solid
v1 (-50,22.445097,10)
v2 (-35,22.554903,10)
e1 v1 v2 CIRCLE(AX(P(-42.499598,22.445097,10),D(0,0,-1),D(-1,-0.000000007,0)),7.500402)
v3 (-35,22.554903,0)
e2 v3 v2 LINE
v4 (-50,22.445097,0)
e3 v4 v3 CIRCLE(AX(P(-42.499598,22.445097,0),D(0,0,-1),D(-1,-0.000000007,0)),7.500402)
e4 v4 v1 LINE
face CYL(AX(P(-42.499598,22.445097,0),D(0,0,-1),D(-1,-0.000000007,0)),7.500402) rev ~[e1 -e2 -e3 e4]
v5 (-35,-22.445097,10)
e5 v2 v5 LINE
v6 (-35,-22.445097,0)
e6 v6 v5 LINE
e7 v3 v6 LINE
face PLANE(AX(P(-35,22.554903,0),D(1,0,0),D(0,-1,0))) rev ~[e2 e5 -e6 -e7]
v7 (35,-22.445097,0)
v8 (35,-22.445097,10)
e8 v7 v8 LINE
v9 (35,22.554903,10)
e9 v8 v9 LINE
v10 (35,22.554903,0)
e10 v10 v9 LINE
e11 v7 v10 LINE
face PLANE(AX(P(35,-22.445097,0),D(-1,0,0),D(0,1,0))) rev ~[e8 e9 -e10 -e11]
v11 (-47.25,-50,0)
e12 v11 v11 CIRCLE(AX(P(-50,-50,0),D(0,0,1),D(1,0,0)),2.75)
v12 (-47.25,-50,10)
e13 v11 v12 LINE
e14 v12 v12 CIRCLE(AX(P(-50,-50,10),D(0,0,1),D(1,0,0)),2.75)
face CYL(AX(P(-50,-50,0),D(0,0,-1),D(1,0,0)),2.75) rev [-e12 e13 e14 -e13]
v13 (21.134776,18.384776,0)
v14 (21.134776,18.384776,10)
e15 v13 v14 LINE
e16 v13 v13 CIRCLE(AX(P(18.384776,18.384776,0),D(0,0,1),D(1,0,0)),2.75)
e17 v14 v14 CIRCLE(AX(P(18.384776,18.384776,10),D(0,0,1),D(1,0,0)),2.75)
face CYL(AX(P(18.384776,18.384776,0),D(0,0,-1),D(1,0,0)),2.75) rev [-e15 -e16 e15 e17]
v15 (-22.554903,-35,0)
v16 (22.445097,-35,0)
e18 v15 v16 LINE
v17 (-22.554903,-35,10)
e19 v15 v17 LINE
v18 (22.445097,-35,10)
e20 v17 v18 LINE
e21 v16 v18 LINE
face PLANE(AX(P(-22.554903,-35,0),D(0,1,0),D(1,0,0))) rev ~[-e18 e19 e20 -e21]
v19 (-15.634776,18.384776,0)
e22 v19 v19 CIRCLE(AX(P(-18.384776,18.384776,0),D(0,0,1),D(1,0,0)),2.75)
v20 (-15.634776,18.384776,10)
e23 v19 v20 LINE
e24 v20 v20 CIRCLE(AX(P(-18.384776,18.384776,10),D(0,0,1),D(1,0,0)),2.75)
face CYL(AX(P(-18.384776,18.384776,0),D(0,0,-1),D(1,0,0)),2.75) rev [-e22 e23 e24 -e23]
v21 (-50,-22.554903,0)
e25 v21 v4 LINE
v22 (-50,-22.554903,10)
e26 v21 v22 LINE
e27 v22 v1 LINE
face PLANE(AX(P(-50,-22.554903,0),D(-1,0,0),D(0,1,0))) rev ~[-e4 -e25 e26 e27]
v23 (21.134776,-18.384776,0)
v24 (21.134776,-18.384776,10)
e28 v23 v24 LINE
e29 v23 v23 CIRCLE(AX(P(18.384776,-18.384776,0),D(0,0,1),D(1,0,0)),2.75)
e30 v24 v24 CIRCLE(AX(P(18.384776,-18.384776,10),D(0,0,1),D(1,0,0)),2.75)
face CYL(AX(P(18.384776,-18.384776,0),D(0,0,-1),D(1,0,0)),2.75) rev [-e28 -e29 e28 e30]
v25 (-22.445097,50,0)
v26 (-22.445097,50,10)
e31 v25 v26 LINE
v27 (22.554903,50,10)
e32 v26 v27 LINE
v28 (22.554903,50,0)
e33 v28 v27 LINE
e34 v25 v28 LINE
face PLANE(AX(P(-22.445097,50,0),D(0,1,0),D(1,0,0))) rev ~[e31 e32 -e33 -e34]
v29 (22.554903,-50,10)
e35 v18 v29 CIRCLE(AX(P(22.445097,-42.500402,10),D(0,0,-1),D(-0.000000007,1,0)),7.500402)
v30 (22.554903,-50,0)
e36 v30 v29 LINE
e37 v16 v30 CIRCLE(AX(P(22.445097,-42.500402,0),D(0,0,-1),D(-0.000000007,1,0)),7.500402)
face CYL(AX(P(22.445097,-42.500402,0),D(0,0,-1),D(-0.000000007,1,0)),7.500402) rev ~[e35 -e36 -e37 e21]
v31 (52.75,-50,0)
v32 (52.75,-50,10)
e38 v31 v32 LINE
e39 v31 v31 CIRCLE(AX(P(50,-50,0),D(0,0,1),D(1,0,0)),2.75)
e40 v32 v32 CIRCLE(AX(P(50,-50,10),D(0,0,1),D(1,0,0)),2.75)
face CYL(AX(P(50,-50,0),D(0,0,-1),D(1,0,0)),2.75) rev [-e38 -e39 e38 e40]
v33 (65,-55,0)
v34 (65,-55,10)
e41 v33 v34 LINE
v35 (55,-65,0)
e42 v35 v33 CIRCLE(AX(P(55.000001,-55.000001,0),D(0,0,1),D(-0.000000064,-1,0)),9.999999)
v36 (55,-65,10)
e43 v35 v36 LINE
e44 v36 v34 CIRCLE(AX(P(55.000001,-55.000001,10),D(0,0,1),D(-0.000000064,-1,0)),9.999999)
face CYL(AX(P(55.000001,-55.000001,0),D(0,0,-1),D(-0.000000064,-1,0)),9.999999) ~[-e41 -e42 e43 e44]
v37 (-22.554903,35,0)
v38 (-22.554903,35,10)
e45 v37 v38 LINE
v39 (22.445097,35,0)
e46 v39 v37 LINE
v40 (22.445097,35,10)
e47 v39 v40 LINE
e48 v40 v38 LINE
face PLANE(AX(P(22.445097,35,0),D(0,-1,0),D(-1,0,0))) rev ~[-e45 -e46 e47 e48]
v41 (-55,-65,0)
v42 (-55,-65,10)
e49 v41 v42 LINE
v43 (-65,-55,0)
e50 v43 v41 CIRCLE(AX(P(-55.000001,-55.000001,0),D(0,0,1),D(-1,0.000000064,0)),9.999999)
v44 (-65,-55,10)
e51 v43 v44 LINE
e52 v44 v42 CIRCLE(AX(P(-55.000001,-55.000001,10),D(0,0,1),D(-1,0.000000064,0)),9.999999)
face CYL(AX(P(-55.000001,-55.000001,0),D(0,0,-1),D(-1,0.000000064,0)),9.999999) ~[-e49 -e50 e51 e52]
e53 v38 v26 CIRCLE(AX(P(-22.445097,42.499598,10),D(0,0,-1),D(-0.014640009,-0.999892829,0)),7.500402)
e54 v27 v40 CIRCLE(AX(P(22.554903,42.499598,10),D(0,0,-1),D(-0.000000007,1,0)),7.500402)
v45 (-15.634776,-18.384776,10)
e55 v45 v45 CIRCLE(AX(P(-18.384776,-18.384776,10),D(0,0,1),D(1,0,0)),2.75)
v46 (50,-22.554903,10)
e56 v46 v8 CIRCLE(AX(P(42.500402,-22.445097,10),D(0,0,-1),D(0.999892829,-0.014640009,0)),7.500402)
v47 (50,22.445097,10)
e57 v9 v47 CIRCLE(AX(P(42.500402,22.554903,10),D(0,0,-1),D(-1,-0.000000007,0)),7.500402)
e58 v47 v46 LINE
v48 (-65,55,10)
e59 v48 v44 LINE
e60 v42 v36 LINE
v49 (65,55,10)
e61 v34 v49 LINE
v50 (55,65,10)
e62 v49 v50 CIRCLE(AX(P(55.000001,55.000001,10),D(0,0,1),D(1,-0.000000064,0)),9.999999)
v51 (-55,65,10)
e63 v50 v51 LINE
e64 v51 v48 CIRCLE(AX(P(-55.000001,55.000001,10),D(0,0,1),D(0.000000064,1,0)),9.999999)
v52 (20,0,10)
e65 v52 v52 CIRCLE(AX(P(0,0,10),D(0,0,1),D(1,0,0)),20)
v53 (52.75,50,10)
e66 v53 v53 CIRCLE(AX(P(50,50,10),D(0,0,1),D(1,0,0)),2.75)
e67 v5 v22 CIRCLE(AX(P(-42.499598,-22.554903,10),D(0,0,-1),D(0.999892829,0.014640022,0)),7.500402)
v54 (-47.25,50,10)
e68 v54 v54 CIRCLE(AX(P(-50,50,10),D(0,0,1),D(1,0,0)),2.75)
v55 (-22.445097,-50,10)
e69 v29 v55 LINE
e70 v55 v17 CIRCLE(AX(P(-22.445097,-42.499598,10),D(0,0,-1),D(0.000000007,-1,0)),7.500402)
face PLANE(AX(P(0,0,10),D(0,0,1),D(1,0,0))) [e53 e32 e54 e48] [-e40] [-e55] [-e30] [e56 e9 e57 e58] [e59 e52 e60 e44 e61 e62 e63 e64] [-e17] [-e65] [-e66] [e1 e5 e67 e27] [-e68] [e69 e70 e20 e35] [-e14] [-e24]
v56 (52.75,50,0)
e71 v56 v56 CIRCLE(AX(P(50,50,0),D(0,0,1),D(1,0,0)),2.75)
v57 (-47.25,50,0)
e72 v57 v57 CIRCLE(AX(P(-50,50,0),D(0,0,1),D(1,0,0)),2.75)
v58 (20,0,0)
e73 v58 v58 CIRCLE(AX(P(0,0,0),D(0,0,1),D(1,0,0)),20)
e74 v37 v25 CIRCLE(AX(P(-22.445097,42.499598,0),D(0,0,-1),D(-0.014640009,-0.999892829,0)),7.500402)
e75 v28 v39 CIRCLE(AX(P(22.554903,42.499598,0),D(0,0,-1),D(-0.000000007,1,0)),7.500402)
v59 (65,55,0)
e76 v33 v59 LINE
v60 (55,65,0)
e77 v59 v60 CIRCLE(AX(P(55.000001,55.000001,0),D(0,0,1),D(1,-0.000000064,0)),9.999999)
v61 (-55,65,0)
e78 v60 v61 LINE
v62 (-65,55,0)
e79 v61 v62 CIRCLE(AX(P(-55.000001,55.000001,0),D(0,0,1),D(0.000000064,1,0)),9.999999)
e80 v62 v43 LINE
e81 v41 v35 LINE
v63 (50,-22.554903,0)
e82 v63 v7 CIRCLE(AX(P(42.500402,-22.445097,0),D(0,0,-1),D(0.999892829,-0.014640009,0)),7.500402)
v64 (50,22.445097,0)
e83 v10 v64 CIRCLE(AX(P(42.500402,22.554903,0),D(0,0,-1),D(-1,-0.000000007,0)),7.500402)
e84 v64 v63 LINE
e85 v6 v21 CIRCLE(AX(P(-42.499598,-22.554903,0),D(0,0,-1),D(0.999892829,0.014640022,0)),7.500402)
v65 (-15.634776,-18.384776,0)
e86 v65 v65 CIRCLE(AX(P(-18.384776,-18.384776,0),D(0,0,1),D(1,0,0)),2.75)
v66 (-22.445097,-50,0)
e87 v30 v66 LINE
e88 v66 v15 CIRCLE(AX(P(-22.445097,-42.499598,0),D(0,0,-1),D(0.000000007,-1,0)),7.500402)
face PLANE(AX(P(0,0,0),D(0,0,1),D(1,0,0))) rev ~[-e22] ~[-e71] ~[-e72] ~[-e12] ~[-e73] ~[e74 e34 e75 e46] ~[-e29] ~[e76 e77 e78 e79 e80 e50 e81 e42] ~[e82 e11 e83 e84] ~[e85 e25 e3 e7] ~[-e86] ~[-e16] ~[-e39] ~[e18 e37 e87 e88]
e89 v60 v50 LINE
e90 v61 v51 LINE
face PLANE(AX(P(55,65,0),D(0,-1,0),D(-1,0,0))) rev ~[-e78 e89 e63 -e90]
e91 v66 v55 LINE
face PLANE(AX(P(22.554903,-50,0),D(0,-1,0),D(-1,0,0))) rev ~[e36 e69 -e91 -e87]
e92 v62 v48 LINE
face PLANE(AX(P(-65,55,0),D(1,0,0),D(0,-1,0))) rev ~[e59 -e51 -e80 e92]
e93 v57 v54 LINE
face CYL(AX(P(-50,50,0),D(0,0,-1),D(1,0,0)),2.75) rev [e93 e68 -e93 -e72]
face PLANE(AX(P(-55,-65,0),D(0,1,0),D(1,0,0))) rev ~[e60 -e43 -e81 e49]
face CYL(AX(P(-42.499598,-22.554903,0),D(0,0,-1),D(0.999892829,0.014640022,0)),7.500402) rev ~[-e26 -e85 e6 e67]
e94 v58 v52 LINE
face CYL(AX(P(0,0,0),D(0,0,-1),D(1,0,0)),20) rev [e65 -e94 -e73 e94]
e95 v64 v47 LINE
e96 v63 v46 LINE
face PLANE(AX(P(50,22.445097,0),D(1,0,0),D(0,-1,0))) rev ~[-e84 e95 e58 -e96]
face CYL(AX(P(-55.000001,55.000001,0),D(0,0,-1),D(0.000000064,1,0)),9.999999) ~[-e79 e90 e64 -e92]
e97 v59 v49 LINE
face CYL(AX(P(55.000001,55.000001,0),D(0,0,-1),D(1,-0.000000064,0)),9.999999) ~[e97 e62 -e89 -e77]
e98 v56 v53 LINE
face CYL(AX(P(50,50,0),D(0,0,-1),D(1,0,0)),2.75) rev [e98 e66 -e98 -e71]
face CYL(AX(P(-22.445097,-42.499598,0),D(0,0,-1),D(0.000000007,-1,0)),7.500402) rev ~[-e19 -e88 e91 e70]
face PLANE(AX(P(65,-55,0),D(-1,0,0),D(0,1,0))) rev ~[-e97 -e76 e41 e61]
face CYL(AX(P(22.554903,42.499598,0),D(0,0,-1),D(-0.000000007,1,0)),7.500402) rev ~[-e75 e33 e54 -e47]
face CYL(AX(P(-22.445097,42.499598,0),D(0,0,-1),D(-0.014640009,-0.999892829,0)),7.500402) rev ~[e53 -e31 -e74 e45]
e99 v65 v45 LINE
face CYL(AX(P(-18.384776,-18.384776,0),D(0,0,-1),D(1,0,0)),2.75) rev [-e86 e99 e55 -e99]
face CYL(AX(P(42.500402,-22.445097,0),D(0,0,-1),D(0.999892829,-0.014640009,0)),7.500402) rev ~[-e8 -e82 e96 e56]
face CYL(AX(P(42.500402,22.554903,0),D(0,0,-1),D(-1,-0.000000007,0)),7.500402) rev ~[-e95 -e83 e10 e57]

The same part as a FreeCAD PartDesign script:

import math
import FreeCAD as App
import Part
import Sketcher

V = App.Vector
Q = App.Units.Quantity

doc = App.newDocument("Part")
body = doc.addObject("PartDesign::Body", "Body")

sketch1 = doc.addObject("Sketcher::SketchObject", "Sketch")
body.addObject(sketch1)
sketch1.AttachmentSupport = (doc.XY_Plane, [""])
sketch1.MapMode = "FlatFace"
sketch1.addGeometry([
    Part.LineSegment(V(-55, -65, 0), V(55, -65, 0)),
    Part.ArcOfCircle(Part.Circle(V(55.000001, -55.000001, 0), V(0, 0, 1), 9.999999), math.radians(-90.000004), math.radians(0.000004)),
    Part.LineSegment(V(65, -55, 0), V(65, 55, 0)),
    Part.ArcOfCircle(Part.Circle(V(55.000001, 55.000001, 0), V(0, 0, 1), 9.999999), math.radians(-0.000004), math.radians(90.000004)),
    Part.LineSegment(V(55, 65, 0), V(-55, 65, 0)),
    Part.ArcOfCircle(Part.Circle(V(-55.000001, 55.000001, 0), V(0, 0, 1), 9.999999), math.radians(89.999996), math.radians(180.000004)),
    Part.LineSegment(V(-65, 55, 0), V(-65, -55, 0)),
    Part.ArcOfCircle(Part.Circle(V(-55.000001, -55.000001, 0), V(0, 0, 1), 9.999999), math.radians(179.999996), math.radians(270.000004)),
    Part.Circle(V(-50, -50, 0), V(0, 0, 1), 2.75),
    Part.ArcOfCircle(Part.Circle(V(-42.499598, 22.445097, 0), V(0, 0, 1), 7.500402), math.radians(0.838841), math.radians(180)),
    Part.LineSegment(V(-35, 22.554903, 0), V(-35, -22.445097, 0)),
    Part.ArcOfCircle(Part.Circle(V(-42.499598, -22.554903, 0), V(0, 0, 1), 7.500402), math.radians(180), math.radians(360.838841)),
    Part.LineSegment(V(-50, -22.554903, 0), V(-50, 22.445097, 0)),
    Part.Circle(V(-18.384776, -18.384776, 0), V(0, 0, 1), 2.75),
    Part.ArcOfCircle(Part.Circle(V(-22.445097, -42.499598, 0), V(0, 0, 1), 7.500402), math.radians(90.838841), math.radians(270)),
    Part.LineSegment(V(-22.554903, -35, 0), V(22.445097, -35, 0)),
    Part.ArcOfCircle(Part.Circle(V(22.445097, -42.500402, 0), V(0, 0, 1), 7.500402), math.radians(-89.161159), math.radians(90)),
    Part.LineSegment(V(22.554903, -50, 0), V(-22.445097, -50, 0)),
    Part.Circle(V(50, -50, 0), V(0, 0, 1), 2.75),
    Part.Circle(V(18.384776, -18.384776, 0), V(0, 0, 1), 2.75),
    Part.Circle(V(-18.384776, 18.384776, 0), V(0, 0, 1), 2.75),
    Part.Circle(V(-50, 50, 0), V(0, 0, 1), 2.75),
    Part.Circle(V(0, 0, 0), V(0, 0, 1), 20),
    Part.Circle(V(18.384776, 18.384776, 0), V(0, 0, 1), 2.75),
    Part.ArcOfCircle(Part.Circle(V(42.500402, 22.554903, 0), V(0, 0, 1), 7.500402), math.radians(-0.838841), math.radians(180)),
    Part.LineSegment(V(50, 22.445097, 0), V(50, -22.554903, 0)),
    Part.ArcOfCircle(Part.Circle(V(42.500402, -22.445097, 0), V(0, 0, 1), 7.500402), math.radians(180), math.radians(359.161159)),
    Part.LineSegment(V(35, -22.445097, 0), V(35, 22.554903, 0)),
    Part.LineSegment(V(-22.445097, 50, 0), V(22.554903, 50, 0)),
    Part.ArcOfCircle(Part.Circle(V(22.554903, 42.499598, 0), V(0, 0, 1), 7.500402), math.radians(-90.838841), math.radians(90)),
    Part.LineSegment(V(22.445097, 35, 0), V(-22.554903, 35, 0)),
    Part.ArcOfCircle(Part.Circle(V(-22.445097, 42.499598, 0), V(0, 0, 1), 7.500402), math.radians(90), math.radians(269.161159)),
    Part.Circle(V(50, 50, 0), V(0, 0, 1), 2.75),
], False)
sketch1.addConstraint([
    Sketcher.Constraint("Tangent", 0, 2, 1, 1),
    Sketcher.Constraint("Tangent", 1, 2, 2, 1),
    Sketcher.Constraint("Tangent", 2, 2, 3, 1),
    Sketcher.Constraint("Tangent", 3, 2, 4, 1),
    Sketcher.Constraint("Tangent", 4, 2, 5, 1),
    Sketcher.Constraint("Tangent", 5, 2, 6, 1),
    Sketcher.Constraint("Tangent", 6, 2, 7, 1),
    Sketcher.Constraint("Tangent", 7, 2, 0, 1),
    Sketcher.Constraint("Coincident", 9, 1, 10, 1),
    Sketcher.Constraint("Coincident", 10, 2, 11, 2),
    Sketcher.Constraint("Tangent", 11, 1, 12, 1),
    Sketcher.Constraint("Tangent", 12, 2, 9, 2),
    Sketcher.Constraint("Coincident", 14, 1, 15, 1),
    Sketcher.Constraint("Tangent", 15, 2, 16, 2),
    Sketcher.Constraint("Coincident", 16, 1, 17, 1),
    Sketcher.Constraint("Tangent", 17, 2, 14, 2),
    Sketcher.Constraint("Coincident", 24, 1, 25, 1),
    Sketcher.Constraint("Coincident", 25, 2, 26, 2),
    Sketcher.Constraint("Tangent", 26, 1, 27, 1),
    Sketcher.Constraint("Tangent", 27, 2, 24, 2),
    Sketcher.Constraint("Tangent", 28, 2, 29, 2),
    Sketcher.Constraint("Coincident", 29, 1, 30, 1),
    Sketcher.Constraint("Coincident", 30, 2, 31, 2),
    Sketcher.Constraint("Tangent", 31, 1, 28, 1),
    Sketcher.Constraint("Horizontal", 0),
    Sketcher.Constraint("Vertical", 2),
    Sketcher.Constraint("Horizontal", 4),
    Sketcher.Constraint("Vertical", 6),
    Sketcher.Constraint("Vertical", 10),
    Sketcher.Constraint("Vertical", 12),
    Sketcher.Constraint("Horizontal", 15),
    Sketcher.Constraint("Horizontal", 17),
    Sketcher.Constraint("Vertical", 25),
    Sketcher.Constraint("Vertical", 27),
    Sketcher.Constraint("Horizontal", 28),
    Sketcher.Constraint("Horizontal", 30),
    Sketcher.Constraint("Coincident", 22, 3, -1, 1),
    Sketcher.Constraint("Equal", 1, 3),
    Sketcher.Constraint("Equal", 3, 5),
    Sketcher.Constraint("Equal", 5, 7),
    Sketcher.Constraint("Equal", 9, 11),
    Sketcher.Constraint("Equal", 8, 13),
    Sketcher.Constraint("Equal", 11, 14),
    Sketcher.Constraint("Equal", 14, 16),
    Sketcher.Constraint("Equal", 13, 18),
    Sketcher.Constraint("Equal", 18, 19),
    Sketcher.Constraint("Equal", 19, 20),
    Sketcher.Constraint("Equal", 20, 21),
    Sketcher.Constraint("Equal", 21, 23),
    Sketcher.Constraint("Equal", 16, 24),
    Sketcher.Constraint("Equal", 24, 26),
    Sketcher.Constraint("Equal", 26, 29),
    Sketcher.Constraint("Equal", 29, 31),
    Sketcher.Constraint("Equal", 23, 32),
    Sketcher.Constraint("Symmetric", 1, 3, 5, 3, -1, 1),
    Sketcher.Constraint("Symmetric", 19, 3, 20, 3, -1, 1),
    Sketcher.Constraint("Symmetric", 18, 3, 21, 3, -1, 1),
    Sketcher.Constraint("Symmetric", 13, 3, 23, 3, -1, 1),
    Sketcher.Constraint("Symmetric", 8, 3, 32, 3, -1, 1),
    Sketcher.Constraint("Symmetric", 8, 3, 18, 3, -2),
    Sketcher.Constraint("Symmetric", 13, 3, 19, 3, -2),
    Sketcher.Constraint("Symmetric", 12, 2, 24, 1, -2),
    Sketcher.Constraint("Symmetric", 10, 2, 26, 1, -2),
    Sketcher.Constraint("Symmetric", 14, 3, 31, 3, -1),
    Sketcher.Constraint("Symmetric", 15, 2, 29, 1, -1),
    Sketcher.Constraint("Horizontal", 18, 3, 16, 1),
    Sketcher.Constraint("Vertical", 21, 3, 11, 1),
    Sketcher.Constraint("Equal", 4, 2),
    Sketcher.Constraint("Equal", 30, 10),
    Sketcher.Constraint("Diameter", 22, Q("40 mm")),
    Sketcher.Constraint("Radius", 1, Q("9.999999 mm")),
    Sketcher.Constraint("Diameter", 8, Q("5.5 mm")),
    Sketcher.Constraint("DistanceX", 0, 1, 0, 2, Q("110 mm")),
    Sketcher.Constraint("DistanceX", 15, 1, 15, 2, Q("45 mm")),
    Sketcher.Constraint("DistanceX", 8, 3, -1, 1, Q("50 mm")),
    Sketcher.Constraint("DistanceY", 8, 3, -1, 1, Q("50 mm")),
    Sketcher.Constraint("DistanceX", 9, 1, -1, 1, Q("35 mm")),
    Sketcher.Constraint("DistanceY", 14, 1, -1, 1, Q("35 mm")),
    Sketcher.Constraint("Radius", 9, Q("7.500402 mm")),
    Sketcher.Constraint("DistanceX", 11, 3, 14, 3, Q("20.054501 mm")),
    Sketcher.Constraint("DistanceY", 16, 3, 11, 3, Q("19.945499 mm")),
    Sketcher.Constraint("DistanceX", 14, 3, 13, 3, Q("4.060321 mm")),
    Sketcher.Constraint("DistanceY", 20, 3, 9, 3, Q("4.060321 mm")),
])
pad1 = doc.addObject("PartDesign::Pad", "Pad")
body.addObject(pad1)
pad1.Profile = sketch1
pad1.Length = 10

doc.recompute()
